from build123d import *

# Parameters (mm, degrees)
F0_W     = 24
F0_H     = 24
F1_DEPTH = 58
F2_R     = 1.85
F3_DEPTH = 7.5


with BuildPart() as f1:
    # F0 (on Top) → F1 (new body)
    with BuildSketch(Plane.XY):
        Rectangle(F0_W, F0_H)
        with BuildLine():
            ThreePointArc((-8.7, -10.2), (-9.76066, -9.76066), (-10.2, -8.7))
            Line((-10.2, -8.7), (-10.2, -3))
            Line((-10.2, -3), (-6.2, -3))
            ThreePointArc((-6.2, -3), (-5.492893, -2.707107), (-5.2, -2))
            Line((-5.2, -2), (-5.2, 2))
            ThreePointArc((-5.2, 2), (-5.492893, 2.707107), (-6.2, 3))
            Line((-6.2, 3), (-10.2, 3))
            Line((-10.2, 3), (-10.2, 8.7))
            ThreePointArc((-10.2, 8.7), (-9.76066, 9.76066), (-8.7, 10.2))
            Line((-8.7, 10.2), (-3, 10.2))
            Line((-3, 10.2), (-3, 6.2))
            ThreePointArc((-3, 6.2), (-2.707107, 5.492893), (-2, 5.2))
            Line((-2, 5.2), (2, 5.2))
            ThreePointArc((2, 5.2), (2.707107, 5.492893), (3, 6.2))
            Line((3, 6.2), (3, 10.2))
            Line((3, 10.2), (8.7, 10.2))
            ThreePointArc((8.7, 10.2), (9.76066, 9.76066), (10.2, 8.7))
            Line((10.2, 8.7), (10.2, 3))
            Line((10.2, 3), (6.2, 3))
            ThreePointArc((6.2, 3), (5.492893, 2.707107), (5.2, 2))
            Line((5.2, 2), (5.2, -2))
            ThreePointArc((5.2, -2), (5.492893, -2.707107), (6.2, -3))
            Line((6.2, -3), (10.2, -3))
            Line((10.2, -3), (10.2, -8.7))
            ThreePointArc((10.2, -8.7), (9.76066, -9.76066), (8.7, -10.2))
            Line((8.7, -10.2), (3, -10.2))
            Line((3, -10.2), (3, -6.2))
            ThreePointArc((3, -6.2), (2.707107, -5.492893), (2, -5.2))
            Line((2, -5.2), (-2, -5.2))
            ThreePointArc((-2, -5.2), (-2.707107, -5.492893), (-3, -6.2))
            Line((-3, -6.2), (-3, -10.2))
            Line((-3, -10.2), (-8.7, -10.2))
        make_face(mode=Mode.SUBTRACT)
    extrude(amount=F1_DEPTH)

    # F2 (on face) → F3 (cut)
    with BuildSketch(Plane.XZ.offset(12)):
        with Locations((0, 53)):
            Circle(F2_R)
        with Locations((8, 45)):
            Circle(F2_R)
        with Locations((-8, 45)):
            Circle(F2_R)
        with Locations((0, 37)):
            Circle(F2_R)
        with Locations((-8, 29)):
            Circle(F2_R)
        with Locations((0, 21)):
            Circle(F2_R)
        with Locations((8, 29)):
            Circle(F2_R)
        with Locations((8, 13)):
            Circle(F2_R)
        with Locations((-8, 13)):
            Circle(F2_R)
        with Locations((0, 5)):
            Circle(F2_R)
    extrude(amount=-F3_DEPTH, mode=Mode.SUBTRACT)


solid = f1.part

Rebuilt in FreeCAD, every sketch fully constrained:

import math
import FreeCAD as App
import Part
import Sketcher
Q = App.Units.Quantity

doc = App.newDocument("Part")
body = doc.addObject("PartDesign::Body", "Body")

# Sketch on XY plane
sketch1 = body.newObject("Sketcher::SketchObject", "Sketch")
sketch1.AttachmentSupport = (doc.getObject("XY_Plane"), [""])
sketch1.MapMode = "FlatFace"
sketch1.addGeometry([
    Part.LineSegment(App.Vector(-12, 12, 0), App.Vector(-12, -12, 0)),  # 0
    Part.LineSegment(App.Vector(-12, -12, 0), App.Vector(12, -12, 0)),  # 1
    Part.LineSegment(App.Vector(12, -12, 0), App.Vector(12, 12, 0)),  # 2
    Part.LineSegment(App.Vector(12, 12, 0), App.Vector(-12, 12, 0)),  # 3
    Part.LineSegment(App.Vector(-3, -10.2, 0), App.Vector(-8.7, -10.2, 0)),  # 4
    Part.ArcOfCircle(Part.Circle(App.Vector(-8.7, -8.7, 0), App.Vector(0, 0, 1), 1.5), math.radians(-180), math.radians(-90)),  # 5
    Part.LineSegment(App.Vector(-10.2, -8.7, 0), App.Vector(-10.2, -3, 0)),  # 6
    Part.LineSegment(App.Vector(-10.2, -3, 0), App.Vector(-6.2, -3, 0)),  # 7
    Part.ArcOfCircle(Part.Circle(App.Vector(-6.2, -2, 0), App.Vector(0, 0, 1), 1), math.radians(-90), math.radians(0)),  # 8
    Part.LineSegment(App.Vector(-5.2, -2, 0), App.Vector(-5.2, 2, 0)),  # 9
    Part.ArcOfCircle(Part.Circle(App.Vector(-6.2, 2, 0), App.Vector(0, 0, 1), 1), math.radians(0), math.radians(90)),  # 10
    Part.LineSegment(App.Vector(-6.2, 3, 0), App.Vector(-10.2, 3, 0)),  # 11
    Part.LineSegment(App.Vector(-10.2, 3, 0), App.Vector(-10.2, 8.7, 0)),  # 12
    Part.ArcOfCircle(Part.Circle(App.Vector(-8.7, 8.7, 0), App.Vector(0, 0, 1), 1.5), math.radians(90), math.radians(180)),  # 13
    Part.LineSegment(App.Vector(-8.7, 10.2, 0), App.Vector(-3, 10.2, 0)),  # 14
    Part.LineSegment(App.Vector(-3, 10.2, 0), App.Vector(-3, 6.2, 0)),  # 15
    Part.ArcOfCircle(Part.Circle(App.Vector(-2, 6.2, 0), App.Vector(0, 0, 1), 1), math.radians(180), math.radians(270)),  # 16
    Part.LineSegment(App.Vector(-2, 5.2, 0), App.Vector(2, 5.2, 0)),  # 17
    Part.ArcOfCircle(Part.Circle(App.Vector(2, 6.2, 0), App.Vector(0, 0, 1), 1), math.radians(-90), math.radians(0)),  # 18
    Part.LineSegment(App.Vector(3, 6.2, 0), App.Vector(3, 10.2, 0)),  # 19
    Part.LineSegment(App.Vector(3, 10.2, 0), App.Vector(8.7, 10.2, 0)),  # 20
    Part.ArcOfCircle(Part.Circle(App.Vector(8.7, 8.7, 0), App.Vector(0, 0, 1), 1.5), math.radians(0), math.radians(90)),  # 21
    Part.LineSegment(App.Vector(10.2, 8.7, 0), App.Vector(10.2, 3, 0)),  # 22
    Part.LineSegment(App.Vector(10.2, 3, 0), App.Vector(6.2, 3, 0)),  # 23
    Part.ArcOfCircle(Part.Circle(App.Vector(6.2, 2, 0), App.Vector(0, 0, 1), 1), math.radians(90), math.radians(180)),  # 24
    Part.LineSegment(App.Vector(5.2, 2, 0), App.Vector(5.2, -2, 0)),  # 25
    Part.ArcOfCircle(Part.Circle(App.Vector(6.2, -2, 0), App.Vector(0, 0, 1), 1), math.radians(180), math.radians(270)),  # 26
    Part.LineSegment(App.Vector(6.2, -3, 0), App.Vector(10.2, -3, 0)),  # 27
    Part.LineSegment(App.Vector(10.2, -3, 0), App.Vector(10.2, -8.7, 0)),  # 28
    Part.ArcOfCircle(Part.Circle(App.Vector(8.7, -8.7, 0), App.Vector(0, 0, 1), 1.5), math.radians(-90), math.radians(0)),  # 29
    Part.LineSegment(App.Vector(8.7, -10.2, 0), App.Vector(3, -10.2, 0)),  # 30
    Part.LineSegment(App.Vector(3, -10.2, 0), App.Vector(3, -6.2, 0)),  # 31
    Part.ArcOfCircle(Part.Circle(App.Vector(2, -6.2, 0), App.Vector(0, 0, 1), 1), math.radians(0), math.radians(90)),  # 32
    Part.LineSegment(App.Vector(2, -5.2, 0), App.Vector(-2, -5.2, 0)),  # 33
    Part.ArcOfCircle(Part.Circle(App.Vector(-2, -6.2, 0), App.Vector(0, 0, 1), 1), math.radians(90), math.radians(180)),  # 34
    Part.LineSegment(App.Vector(-3, -6.2, 0), App.Vector(-3, -10.2, 0)),  # 35
], False)
sketch1.addConstraint([
    Sketcher.Constraint("Coincident", 0, 2, 1, 1),
    Sketcher.Constraint("Coincident", 1, 2, 2, 1),
    Sketcher.Constraint("Coincident", 2, 2, 3, 1),
    Sketcher.Constraint("Coincident", 3, 2, 0, 1),
    Sketcher.Constraint("Tangent", 4, 2, 5, 2),
    Sketcher.Constraint("Tangent", 5, 1, 6, 1),
    Sketcher.Constraint("Coincident", 6, 2, 7, 1),
    Sketcher.Constraint("Tangent", 7, 2, 8, 1),
    Sketcher.Constraint("Tangent", 8, 2, 9, 1),
    Sketcher.Constraint("Tangent", 9, 2, 10, 1),
    Sketcher.Constraint("Tangent", 10, 2, 11, 1),
    Sketcher.Constraint("Coincident", 11, 2, 12, 1),
    Sketcher.Constraint("Tangent", 12, 2, 13, 2),
    Sketcher.Constraint("Tangent", 13, 1, 14, 1),
    Sketcher.Constraint("Coincident", 14, 2, 15, 1),
    Sketcher.Constraint("Tangent", 15, 2, 16, 1),
    Sketcher.Constraint("Tangent", 16, 2, 17, 1),
    Sketcher.Constraint("Tangent", 17, 2, 18, 1),
    Sketcher.Constraint("Tangent", 18, 2, 19, 1),
    Sketcher.Constraint("Coincident", 19, 2, 20, 1),
    Sketcher.Constraint("Tangent", 20, 2, 21, 2),
    Sketcher.Constraint("Tangent", 21, 1, 22, 1),
    Sketcher.Constraint("Coincident", 22, 2, 23, 1),
    Sketcher.Constraint("Tangent", 23, 2, 24, 1),
    Sketcher.Constraint("Tangent", 24, 2, 25, 1),
    Sketcher.Constraint("Tangent", 25, 2, 26, 1),
    Sketcher.Constraint("Tangent", 26, 2, 27, 1),
    Sketcher.Constraint("Coincident", 27, 2, 28, 1),
    Sketcher.Constraint("Tangent", 28, 2, 29, 2),
    Sketcher.Constraint("Tangent", 29, 1, 30, 1),
    Sketcher.Constraint("Coincident", 30, 2, 31, 1),
    Sketcher.Constraint("Tangent", 31, 2, 32, 1),
    Sketcher.Constraint("Tangent", 32, 2, 33, 1),
    Sketcher.Constraint("Tangent", 33, 2, 34, 1),
    Sketcher.Constraint("Tangent", 34, 2, 35, 1),
    Sketcher.Constraint("Coincident", 35, 2, 4, 1),
    Sketcher.Constraint("Vertical", 0),
    Sketcher.Constraint("Horizontal", 1),
    Sketcher.Constraint("Vertical", 2),
    Sketcher.Constraint("Horizontal", 3),
    Sketcher.Constraint("Horizontal", 4),
    Sketcher.Constraint("Vertical", 6),
    Sketcher.Constraint("Horizontal", 7),
    Sketcher.Constraint("Vertical", 9),
    Sketcher.Constraint("Horizontal", 11),
    Sketcher.Constraint("Vertical", 12),
    Sketcher.Constraint("Horizontal", 14),
    Sketcher.Constraint("Vertical", 15),
    Sketcher.Constraint("Horizontal", 17),
    Sketcher.Constraint("Vertical", 19),
    Sketcher.Constraint("Horizontal", 20),
    Sketcher.Constraint("Vertical", 22),
    Sketcher.Constraint("Horizontal", 23),
    Sketcher.Constraint("Vertical", 25),
    Sketcher.Constraint("Horizontal", 27),
    Sketcher.Constraint("Vertical", 28),
    Sketcher.Constraint("Horizontal", 30),
    Sketcher.Constraint("Vertical", 31),
    Sketcher.Constraint("Horizontal", 33),
    Sketcher.Constraint("Vertical", 35),
    Sketcher.Constraint("Equal", 8, 10),
    Sketcher.Constraint("Equal", 5, 13),
    Sketcher.Constraint("Equal", 10, 16),
    Sketcher.Constraint("Equal", 16, 18),
    Sketcher.Constraint("Equal", 13, 21),
    Sketcher.Constraint("Equal", 18, 24),
    Sketcher.Constraint("Equal", 24, 26),
    Sketcher.Constraint("Equal", 21, 29),
    Sketcher.Constraint("Equal", 26, 32),
    Sketcher.Constraint("Equal", 32, 34),
    Sketcher.Constraint("Symmetric", 5, 3, 21, 3, -1, 1),
    Sketcher.Constraint("Symmetric", 8, 3, 24, 3, -1, 1),
    Sketcher.Constraint("Symmetric", 13, 3, 29, 3, -1, 1),
    Sketcher.Constraint("Symmetric", 16, 3, 32, 3, -1, 1),
    Sketcher.Constraint("Symmetric", 0, 2, 2, 2, -1, 1),
    Sketcher.Constraint("Symmetric", 13, 3, 21, 3, -2),
    Sketcher.Constraint("Horizontal", 10, 3, 24, 3),
    Sketcher.Constraint("Horizontal", 8, 3, 26, 3),
    Sketcher.Constraint("Vertical", 18, 3, 32, 3),
    Sketcher.Constraint("Vertical", 16, 3, 34, 3),
    Sketcher.Constraint("Equal", 11, 17),
    Sketcher.Constraint("Equal", 3, 0),
    Sketcher.Constraint("Equal", 30, 6),
    Sketcher.Constraint("Equal", 33, 9),
    Sketcher.Constraint("Equal", 9, 15),
    Sketcher.Constraint("Radius", 8, Q("0.999999 mm")),
    Sketcher.Constraint("Radius", 5, Q("1.500001 mm")),
    Sketcher.Constraint("DistanceX", 1, 1, 1, 2, Q("24 mm")),
    Sketcher.Constraint("DistanceX", 7, 1, 7, 2, Q("4 mm")),
    Sketcher.Constraint("DistanceX", 4, 2, 4, 1, Q("5.7 mm")),
])
pad1 = body.newObject("PartDesign::Pad", "Pad")
pad1.Profile = sketch1
pad1.Length = 58

# Sketch on XZ plane
sketch2 = body.newObject("Sketcher::SketchObject", "Sketch001")
sketch2.AttachmentSupport = (doc.getObject("XZ_Plane"), [""])
sketch2.MapMode = "FlatFace"
sketch2.AttachmentOffset = App.Placement(App.Vector(0, 0, 12), App.Rotation())
sketch2.addGeometry([
    Part.Circle(App.Vector(0, 53, 0), App.Vector(0, 0, 1), 1.9),  # 0
    Part.Circle(App.Vector(8, 45, 0), App.Vector(0, 0, 1), 1.9),  # 1
    Part.Circle(App.Vector(-8, 45, 0), App.Vector(0, 0, 1), 1.9),  # 2
    Part.Circle(App.Vector(0, 37, 0), App.Vector(0, 0, 1), 1.9),  # 3
    Part.Circle(App.Vector(-8, 29, 0), App.Vector(0, 0, 1), 1.9),  # 4
    Part.Circle(App.Vector(0, 21, 0), App.Vector(0, 0, 1), 1.9),  # 5
    Part.Circle(App.Vector(8, 29, 0), App.Vector(0, 0, 1), 1.9),  # 6
    Part.Circle(App.Vector(8, 13, 0), App.Vector(0, 0, 1), 1.9),  # 7
    Part.Circle(App.Vector(-8, 13, 0), App.Vector(0, 0, 1), 1.9),  # 8
    Part.Circle(App.Vector(0, 5, 0), App.Vector(0, 0, 1), 1.9),  # 9
], False)
sketch2.addConstraint([
    Sketcher.Constraint("Equal", 0, 1),
    Sketcher.Constraint("Equal", 1, 2),
    Sketcher.Constraint("Equal", 2, 3),
    Sketcher.Constraint("Equal", 3, 4),
    Sketcher.Constraint("Equal", 4, 5),
    Sketcher.Constraint("Equal", 5, 6),
    Sketcher.Constraint("Equal", 6, 7),
    Sketcher.Constraint("Equal", 7, 8),
    Sketcher.Constraint("Equal", 8, 9),
    Sketcher.Constraint("Symmetric", 1, 3, 2, 3, -2),
    Sketcher.Constraint("Symmetric", 4, 3, 6, 3, -2),
    Sketcher.Constraint("Symmetric", 7, 3, 8, 3, -2),
    Sketcher.Constraint("PointOnObject", 0, 3, -2),
    Sketcher.Constraint("PointOnObject", 3, 3, -2),
    Sketcher.Constraint("PointOnObject", 5, 3, -2),
    Sketcher.Constraint("PointOnObject", 9, 3, -2),
    Sketcher.Constraint("Vertical", 2, 3, 4, 3),
    Sketcher.Constraint("Vertical", 6, 3, 7, 3),
    Sketcher.Constraint("Diameter", 0, Q("3.7 mm")),
    Sketcher.Constraint("DistanceY", -1, 1, 0, 3, Q("53 mm")),
    Sketcher.Constraint("DistanceX", -1, 1, 1, 3, Q("8 mm")),
    Sketcher.Constraint("DistanceY", -1, 1, 1, 3, Q("45 mm")),
    Sketcher.Constraint("DistanceY", -1, 1, 3, 3, Q("37 mm")),
    Sketcher.Constraint("DistanceY", -1, 1, 4, 3, Q("29 mm")),
    Sketcher.Constraint("DistanceY", -1, 1, 5, 3, Q("21 mm")),
    Sketcher.Constraint("DistanceY", -1, 1, 7, 3, Q("13 mm")),
    Sketcher.Constraint("DistanceY", -1, 1, 9, 3, Q("5 mm")),
])
pocket1 = body.newObject("PartDesign::Pocket", "Pocket")
pocket1.Profile = sketch2
pocket1.Length = 7.5

doc.recompute()
